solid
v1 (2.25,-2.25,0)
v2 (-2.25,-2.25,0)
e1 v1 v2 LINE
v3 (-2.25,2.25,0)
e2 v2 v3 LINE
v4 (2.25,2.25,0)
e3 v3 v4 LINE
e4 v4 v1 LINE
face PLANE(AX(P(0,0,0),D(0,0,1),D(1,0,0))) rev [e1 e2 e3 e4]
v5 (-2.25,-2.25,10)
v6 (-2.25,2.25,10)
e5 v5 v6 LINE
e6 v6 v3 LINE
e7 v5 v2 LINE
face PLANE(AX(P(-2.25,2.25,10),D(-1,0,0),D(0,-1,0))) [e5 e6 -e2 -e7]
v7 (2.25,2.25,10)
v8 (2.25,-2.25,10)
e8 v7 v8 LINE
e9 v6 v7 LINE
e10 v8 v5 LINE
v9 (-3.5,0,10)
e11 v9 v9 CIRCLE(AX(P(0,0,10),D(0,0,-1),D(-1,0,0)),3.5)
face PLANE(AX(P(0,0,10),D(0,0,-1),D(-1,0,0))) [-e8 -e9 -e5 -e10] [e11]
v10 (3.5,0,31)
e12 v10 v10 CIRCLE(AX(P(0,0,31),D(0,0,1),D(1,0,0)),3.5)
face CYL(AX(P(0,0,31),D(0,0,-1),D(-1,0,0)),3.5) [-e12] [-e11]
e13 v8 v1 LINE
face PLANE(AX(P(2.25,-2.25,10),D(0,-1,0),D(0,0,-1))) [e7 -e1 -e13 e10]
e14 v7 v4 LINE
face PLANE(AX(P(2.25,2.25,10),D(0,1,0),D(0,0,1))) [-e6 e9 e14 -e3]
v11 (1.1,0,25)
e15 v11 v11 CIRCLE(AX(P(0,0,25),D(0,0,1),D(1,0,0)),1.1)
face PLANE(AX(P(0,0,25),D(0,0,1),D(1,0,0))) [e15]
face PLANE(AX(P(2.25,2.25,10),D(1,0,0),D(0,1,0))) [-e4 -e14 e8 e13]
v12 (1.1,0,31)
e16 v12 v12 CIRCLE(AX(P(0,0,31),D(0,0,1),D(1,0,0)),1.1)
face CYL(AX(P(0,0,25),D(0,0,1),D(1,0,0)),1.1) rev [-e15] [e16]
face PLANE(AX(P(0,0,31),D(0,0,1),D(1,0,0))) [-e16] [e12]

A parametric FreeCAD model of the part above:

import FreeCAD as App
import Part
import Sketcher
Q = App.Units.Quantity


def add_polygon(sketch, points):
    """Adds a closed chain of lines whose ends are joined by coincident constraints."""
    first, n = sketch.GeometryCount, len(points)
    for a, b in zip(points, points[1:] + points[:1]):
        sketch.addGeometry(Part.LineSegment(App.Vector(*a, 0), App.Vector(*b, 0)), False)
    for i in range(n):
        sketch.addConstraint(Sketcher.Constraint("Coincident", first + i, 2, first + (i + 1) % n, 1))

doc = App.newDocument("Part")
body = doc.addObject("PartDesign::Body", "Body")

sketch1 = doc.addObject("Sketcher::SketchObject", "Sketch")
body.addObject(sketch1)
sketch1.AttachmentSupport = (doc.XY_Plane, [""])
sketch1.MapMode = "FlatFace"
sketch1.addGeometry(Part.Circle(App.Vector(0, 0, 0), App.Vector(0, 0, 1), 3.5), False)
sketch1.addConstraint([
    Sketcher.Constraint("Coincident", 0, 3, -1, 1),
    Sketcher.Constraint("Diameter", 0, Q("7 mm")),
])
pad1 = doc.addObject("PartDesign::Pad", "Pad")
body.addObject(pad1)
pad1.Profile = sketch1
pad1.Length = 31

sketch2 = doc.addObject("Sketcher::SketchObject", "Sketch001")
body.addObject(sketch2)
sketch2.AttachmentSupport = (doc.XY_Plane, [""])
sketch2.MapMode = "FlatFace"
sketch2.addGeometry(Part.Circle(App.Vector(0, 0, 0), App.Vector(0, 0, 1), 3.5), False)
add_polygon(sketch2, [(-2.2, -2.2), (2.2, -2.2), (2.2, 2.2), (-2.2, 2.2)])
sketch2.addConstraint([
    Sketcher.Constraint("Horizontal", 1),
    Sketcher.Constraint("Vertical", 2),
    Sketcher.Constraint("Horizontal", 3),
    Sketcher.Constraint("Vertical", 4),
    Sketcher.Constraint("Coincident", 0, 3, -1, 1),
    Sketcher.Constraint("Symmetric", 1, 2, 3, 2, -1, 1),
    Sketcher.Constraint("Equal", 3, 2),
    Sketcher.Constraint("Diameter", 0, Q("7 mm")),
    Sketcher.Constraint("DistanceX", 1, 1, 1, 2, Q("4.5 mm")),
])
pocket1 = doc.addObject("PartDesign::Pocket", "Pocket")
body.addObject(pocket1)
pocket1.Profile = sketch2
pocket1.Length = 10
pocket1.Reversed = True

sketch3 = doc.addObject("Sketcher::SketchObject", "Sketch002")
body.addObject(sketch3)
sketch3.AttachmentSupport = (doc.XY_Plane, [""])
sketch3.MapMode = "FlatFace"
sketch3.AttachmentOffset = App.Placement(App.Vector(0, 0, 31), App.Rotation())
sketch3.addGeometry(Part.Circle(App.Vector(0, 0, 0), App.Vector(0, 0, 1), 1.1), False)
sketch3.addConstraint([
    Sketcher.Constraint("Coincident", 0, 3, -1, 1),
    Sketcher.Constraint("Diameter", 0, Q("2.2 mm")),
])
pocket2 = doc.addObject("PartDesign::Pocket", "Pocket001")
body.addObject(pocket2)
pocket2.Profile = sketch3
pocket2.Length = 6

doc.recompute()
